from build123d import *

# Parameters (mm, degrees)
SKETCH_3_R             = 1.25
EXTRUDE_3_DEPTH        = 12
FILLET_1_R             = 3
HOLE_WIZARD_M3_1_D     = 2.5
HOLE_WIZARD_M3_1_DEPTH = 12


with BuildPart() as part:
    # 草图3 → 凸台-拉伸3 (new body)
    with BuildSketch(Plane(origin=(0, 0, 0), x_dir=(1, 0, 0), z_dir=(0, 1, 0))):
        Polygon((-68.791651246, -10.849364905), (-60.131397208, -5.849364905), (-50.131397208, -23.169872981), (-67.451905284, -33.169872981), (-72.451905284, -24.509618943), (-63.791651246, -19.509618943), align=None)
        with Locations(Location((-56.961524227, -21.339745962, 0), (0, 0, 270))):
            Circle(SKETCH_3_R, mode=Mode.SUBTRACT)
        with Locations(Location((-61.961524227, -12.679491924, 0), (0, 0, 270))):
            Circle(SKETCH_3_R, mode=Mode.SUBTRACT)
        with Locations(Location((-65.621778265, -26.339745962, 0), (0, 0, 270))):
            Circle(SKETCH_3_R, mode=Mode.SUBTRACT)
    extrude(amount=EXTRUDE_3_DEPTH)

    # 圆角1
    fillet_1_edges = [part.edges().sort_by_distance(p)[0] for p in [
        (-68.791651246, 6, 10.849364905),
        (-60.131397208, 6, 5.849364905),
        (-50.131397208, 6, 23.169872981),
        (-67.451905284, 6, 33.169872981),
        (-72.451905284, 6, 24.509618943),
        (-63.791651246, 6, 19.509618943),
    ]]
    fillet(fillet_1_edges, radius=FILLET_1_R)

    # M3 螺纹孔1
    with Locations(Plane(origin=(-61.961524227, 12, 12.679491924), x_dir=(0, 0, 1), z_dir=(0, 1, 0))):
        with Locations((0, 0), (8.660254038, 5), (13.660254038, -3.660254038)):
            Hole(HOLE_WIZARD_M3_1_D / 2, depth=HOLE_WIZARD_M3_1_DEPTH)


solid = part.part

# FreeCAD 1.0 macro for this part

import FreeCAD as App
import Part
import Sketcher

V = App.Vector
Q = App.Units.Quantity


def edges_at(feature, points):
    """Names of the edges that pass closest to the given points."""
    edges = feature.Shape.Edges
    near = lambda p: min(range(len(edges)), key=lambda i: edges[i].distToShape(Part.Vertex(*p))[0])
    return sorted({f"Edge{near(p) + 1}" for p in points})

doc = App.newDocument("Part")
body = doc.addObject("PartDesign::Body", "Body")

# Sketch on XZ plane
sketch1 = doc.addObject("Sketcher::SketchObject", "Sketch")
body.addObject(sketch1)
sketch1.AttachmentSupport = (doc.XZ_Plane, [""])
sketch1.MapMode = "FlatFace"
sketch1.addGeometry(Part.LineSegment(V(-60.131397, 5.849365, 0), V(-68.791651, 10.849365, 0)), False)
sketch1.addGeometry(Part.LineSegment(V(-68.791651, 10.849365, 0), V(-63.791651, 19.509619, 0)), False)
sketch1.addGeometry(Part.LineSegment(V(-63.791651, 19.509619, 0), V(-72.451905, 24.509619, 0)), False)
sketch1.addGeometry(Part.LineSegment(V(-72.451905, 24.509619, 0), V(-67.451905, 33.169873, 0)), False)
sketch1.addGeometry(Part.LineSegment(V(-67.451905, 33.169873, 0), V(-50.131397, 23.169873, 0)), False)
sketch1.addGeometry(Part.LineSegment(V(-50.131397, 23.169873, 0), V(-60.131397, 5.849365, 0)), False)
sketch1.addGeometry(Part.Circle(V(-56.961524, 21.339746, 0), V(0, 0, 1), 1.25), False)
sketch1.addGeometry(Part.Circle(V(-65.621778, 26.339746, 0), V(0, 0, 1), 1.25), False)
sketch1.addGeometry(Part.Circle(V(-61.961524, 12.679492, 0), V(0, 0, 1), 1.25), False)
sketch1.addConstraint(Sketcher.Constraint("Coincident", 0, 2, 1, 1))
sketch1.addConstraint(Sketcher.Constraint("Coincident", 1, 2, 2, 1))
sketch1.addConstraint(Sketcher.Constraint("Coincident", 2, 2, 3, 1))
sketch1.addConstraint(Sketcher.Constraint("Coincident", 3, 2, 4, 1))
sketch1.addConstraint(Sketcher.Constraint("Coincident", 4, 2, 5, 1))
sketch1.addConstraint(Sketcher.Constraint("Coincident", 5, 2, 0, 1))
sketch1.addConstraint(Sketcher.Constraint("Equal", 6, 7))
sketch1.addConstraint(Sketcher.Constraint("Equal", 7, 8))
sketch1.addConstraint(Sketcher.Constraint("Perpendicular", 0, 1))
sketch1.addConstraint(Sketcher.Constraint("Perpendicular", 1, 2))
sketch1.addConstraint(Sketcher.Constraint("Perpendicular", 2, 3))
sketch1.addConstraint(Sketcher.Constraint("Perpendicular", 3, 4))
sketch1.addConstraint(Sketcher.Constraint("Perpendicular", 4, 5))
sketch1.addConstraint(Sketcher.Constraint("Equal", 0, 1))
sketch1.addConstraint(Sketcher.Constraint("Equal", 1, 2))
sketch1.addConstraint(Sketcher.Constraint("Equal", 2, 3))
sketch1.addConstraint(Sketcher.Constraint("Diameter", 6, 2.5))
sketch1.addConstraint(Sketcher.Constraint("Angle", 0, Q("150 deg")))
sketch1.addConstraint(Sketcher.Constraint("Distance", 0, 10.0))
sketch1.addConstraint(Sketcher.Constraint("DistanceY", 6, 3, 7, 3, 5.0))
sketch1.addConstraint(Sketcher.Constraint("DistanceX", 8, 3, 6, 3, 5.0))
sketch1.addConstraint(Sketcher.Constraint("DistanceX", 7, 3, -1, 1, 65.621778))
sketch1.addConstraint(Sketcher.Constraint("DistanceY", -1, 1, 8, 3, 12.679492))
sketch1.addConstraint(Sketcher.Constraint("DistanceX", 0, 2, -1, 1, 68.791651))
sketch1.addConstraint(Sketcher.Constraint("DistanceY", -1, 1, 1, 2, 19.509619))
sketch1.addConstraint(Sketcher.Constraint("DistanceY", 0, 2, 7, 3, 15.490381))
sketch1.addConstraint(Sketcher.Constraint("DistanceX", 2, 2, 8, 3, 10.490381))
pad1 = doc.addObject("PartDesign::Pad", "Pad")
body.addObject(pad1)
pad1.Profile = sketch1
pad1.Length = 12
pad1.Reversed = True
doc.recompute()

fillet = doc.addObject("PartDesign::Fillet", "Fillet")
body.addObject(fillet)
fillet.Base = (pad1, edges_at(pad1, [
    (-68.792, 6, 10.849),
    (-60.131, 6, 5.849),
    (-50.131, 6, 23.17),
    (-67.452, 6, 33.17),
    (-72.452, 6, 24.51),
    (-63.792, 6, 19.51),
]))
fillet.Radius = 3

# Sketch on XZ plane
sketch2 = doc.addObject("Sketcher::SketchObject", "Sketch001")
body.addObject(sketch2)
sketch2.AttachmentSupport = (doc.XZ_Plane, [""])
sketch2.MapMode = "FlatFace"
sketch2.AttachmentOffset = App.Placement(V(0, 0, -12), App.Rotation())
sketch2.addGeometry(Part.Circle(V(-61.961524, 12.679492, 0), V(0, 0, 1), 1.25), False)
sketch2.addGeometry(Part.Circle(V(-56.961524, 21.339746, 0), V(0, 0, 1), 1.25), False)
sketch2.addGeometry(Part.Circle(V(-65.621778, 26.339746, 0), V(0, 0, 1), 1.25), False)
sketch2.addConstraint(Sketcher.Constraint("Equal", 0, 1))
sketch2.addConstraint(Sketcher.Constraint("Equal", 1, 2))
sketch2.addConstraint(Sketcher.Constraint("Diameter", 0, 2.5))
sketch2.addConstraint(Sketcher.Constraint("DistanceX", 0, 3, 1, 3, 5.0))
sketch2.addConstraint(Sketcher.Constraint("DistanceY", 1, 3, 2, 3, 5.0))
sketch2.addConstraint(Sketcher.Constraint("DistanceY", -1, 1, 0, 3, 12.679492))
sketch2.addConstraint(Sketcher.Constraint("DistanceX", 2, 3, -1, 1, 65.621778))
sketch2.addConstraint(Sketcher.Constraint("DistanceX", 0, 3, -1, 1, 61.961524))
sketch2.addConstraint(Sketcher.Constraint("DistanceY", -1, 1, 1, 3, 21.339746))
doc.recompute()
hole = doc.addObject("PartDesign::Hole", "Hole")
body.addObject(hole)
hole.Profile = sketch2
hole.ThreadType = "None"
hole.Diameter = 2.5
hole.DepthType = "Dimension"
hole.Depth = 12
hole.DrillPoint = "Flat"
hole.Reversed = True

doc.recompute()
